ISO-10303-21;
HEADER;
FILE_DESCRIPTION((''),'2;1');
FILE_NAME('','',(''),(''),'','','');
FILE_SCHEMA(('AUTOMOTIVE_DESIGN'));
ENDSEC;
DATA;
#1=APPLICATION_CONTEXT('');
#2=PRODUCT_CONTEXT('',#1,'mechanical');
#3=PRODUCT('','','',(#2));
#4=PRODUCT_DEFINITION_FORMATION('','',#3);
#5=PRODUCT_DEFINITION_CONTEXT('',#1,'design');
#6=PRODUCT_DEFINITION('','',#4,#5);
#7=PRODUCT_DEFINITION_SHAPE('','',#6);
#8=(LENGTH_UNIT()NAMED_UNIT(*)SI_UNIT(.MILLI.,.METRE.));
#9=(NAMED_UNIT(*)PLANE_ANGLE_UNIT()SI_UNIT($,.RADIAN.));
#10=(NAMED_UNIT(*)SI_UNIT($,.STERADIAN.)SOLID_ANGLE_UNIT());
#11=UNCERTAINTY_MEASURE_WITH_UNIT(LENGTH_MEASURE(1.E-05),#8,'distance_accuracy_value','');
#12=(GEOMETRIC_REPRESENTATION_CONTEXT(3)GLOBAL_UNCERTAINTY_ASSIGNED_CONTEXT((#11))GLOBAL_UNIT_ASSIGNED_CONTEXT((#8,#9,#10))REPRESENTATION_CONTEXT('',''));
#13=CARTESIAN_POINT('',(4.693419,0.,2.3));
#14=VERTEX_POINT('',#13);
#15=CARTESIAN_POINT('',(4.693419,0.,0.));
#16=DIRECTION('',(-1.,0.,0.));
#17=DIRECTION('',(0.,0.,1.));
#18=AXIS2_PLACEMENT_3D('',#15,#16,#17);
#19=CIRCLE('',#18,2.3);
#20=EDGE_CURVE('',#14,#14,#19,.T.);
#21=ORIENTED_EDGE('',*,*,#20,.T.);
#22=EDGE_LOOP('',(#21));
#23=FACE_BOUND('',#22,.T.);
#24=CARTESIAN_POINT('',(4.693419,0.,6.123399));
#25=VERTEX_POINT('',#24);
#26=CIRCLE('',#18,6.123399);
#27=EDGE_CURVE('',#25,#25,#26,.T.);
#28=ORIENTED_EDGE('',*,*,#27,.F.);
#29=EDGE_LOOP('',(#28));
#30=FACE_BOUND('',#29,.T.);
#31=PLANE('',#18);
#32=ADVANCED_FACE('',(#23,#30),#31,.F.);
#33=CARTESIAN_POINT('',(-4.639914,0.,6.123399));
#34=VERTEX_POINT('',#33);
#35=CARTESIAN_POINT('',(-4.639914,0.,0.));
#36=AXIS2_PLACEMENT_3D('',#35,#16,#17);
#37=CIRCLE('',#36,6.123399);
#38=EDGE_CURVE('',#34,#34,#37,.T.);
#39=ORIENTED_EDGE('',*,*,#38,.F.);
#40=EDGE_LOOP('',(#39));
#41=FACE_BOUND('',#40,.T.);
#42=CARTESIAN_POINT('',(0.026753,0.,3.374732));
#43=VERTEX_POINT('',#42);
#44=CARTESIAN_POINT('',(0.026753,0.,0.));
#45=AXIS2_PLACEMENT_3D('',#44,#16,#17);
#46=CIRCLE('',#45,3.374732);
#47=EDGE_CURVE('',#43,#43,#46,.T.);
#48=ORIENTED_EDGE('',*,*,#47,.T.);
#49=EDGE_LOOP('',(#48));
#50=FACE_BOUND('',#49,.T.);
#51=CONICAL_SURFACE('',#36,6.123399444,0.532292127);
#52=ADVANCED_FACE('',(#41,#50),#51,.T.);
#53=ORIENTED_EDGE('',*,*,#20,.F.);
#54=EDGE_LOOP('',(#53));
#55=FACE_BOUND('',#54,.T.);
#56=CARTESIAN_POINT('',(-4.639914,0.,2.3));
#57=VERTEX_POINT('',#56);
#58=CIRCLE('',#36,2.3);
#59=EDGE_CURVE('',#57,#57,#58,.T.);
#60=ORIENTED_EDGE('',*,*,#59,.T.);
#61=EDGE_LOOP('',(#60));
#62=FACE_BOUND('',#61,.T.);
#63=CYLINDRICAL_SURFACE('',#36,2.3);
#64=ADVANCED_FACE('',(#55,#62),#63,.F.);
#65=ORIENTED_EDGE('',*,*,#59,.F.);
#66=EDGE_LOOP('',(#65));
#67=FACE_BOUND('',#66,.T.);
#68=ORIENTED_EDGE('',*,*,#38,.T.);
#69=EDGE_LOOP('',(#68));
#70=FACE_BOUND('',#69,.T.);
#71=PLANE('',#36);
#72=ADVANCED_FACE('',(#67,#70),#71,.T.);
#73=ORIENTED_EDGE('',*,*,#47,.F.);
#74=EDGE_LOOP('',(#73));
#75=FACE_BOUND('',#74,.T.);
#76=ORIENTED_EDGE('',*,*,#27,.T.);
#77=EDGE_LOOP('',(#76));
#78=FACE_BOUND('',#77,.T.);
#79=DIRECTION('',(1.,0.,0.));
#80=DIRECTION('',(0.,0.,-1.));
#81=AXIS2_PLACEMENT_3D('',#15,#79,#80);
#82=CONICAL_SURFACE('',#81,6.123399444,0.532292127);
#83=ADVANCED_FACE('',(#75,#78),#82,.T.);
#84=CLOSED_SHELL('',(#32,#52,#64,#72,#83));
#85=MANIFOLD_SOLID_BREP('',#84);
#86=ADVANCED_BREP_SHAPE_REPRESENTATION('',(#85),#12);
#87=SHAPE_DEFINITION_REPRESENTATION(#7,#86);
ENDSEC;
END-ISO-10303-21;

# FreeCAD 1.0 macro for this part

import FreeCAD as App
import Part
import Sketcher

V = App.Vector
Q = App.Units.Quantity

doc = App.newDocument("Part")
params = doc.addObject("Spreadsheet::Sheet", "Params")
for row, (alias, value) in enumerate([
    ("revolution_angle", "360 deg"),
], start=1):
    params.set(f"A{row}", alias)
    params.set(f"B{row}", "=" + value)
    params.setAlias(f"B{row}", alias)

body = doc.addObject("PartDesign::Body", "Body")

# Sketch on XZ plane
sketch1 = body.newObject("Sketcher::SketchObject", "Sketch")
sketch1.AttachmentSupport = (doc.getObject("XZ_Plane"), [""])
sketch1.MapMode = "FlatFace"
sketch1.addGeometry([
    Part.LineSegment(V(-4.6, -6.1, 0), V(-4.6, -2.3, 0)),  # 0
    Part.LineSegment(V(-4.6, -2.3, 0), V(4.7, -2.3, 0)),  # 1
    Part.LineSegment(V(4.7, -2.3, 0), V(4.7, -6.1, 0)),  # 2
    Part.LineSegment(V(4.7, -6.1, 0), V(0, -3.4, 0)),  # 3
    Part.LineSegment(V(0, -3.4, 0), V(-4.6, -6.1, 0)),  # 4
], False)
sketch1.addConstraint([
    Sketcher.Constraint("Coincident", 0, 2, 1, 1),
    Sketcher.Constraint("Coincident", 1, 2, 2, 1),
    Sketcher.Constraint("Coincident", 2, 2, 3, 1),
    Sketcher.Constraint("Coincident", 3, 2, 4, 1),
    Sketcher.Constraint("Coincident", 4, 2, 0, 1),
    Sketcher.Constraint("Vertical", 0),
    Sketcher.Constraint("Horizontal", 1),
    Sketcher.Constraint("Vertical", 2),
    Sketcher.Constraint("Horizontal", 2, 2, 4, 2),
    Sketcher.Constraint("Equal", 3, 4),
    Sketcher.Constraint("DistanceY", 0, 2, -1, 1, Q("2.3 mm")),
    Sketcher.Constraint("DistanceY", 0, 1, 0, 2, Q("3.823399 mm")),
    Sketcher.Constraint("Distance", 3, Q("5.41599 mm")),
    Sketcher.Constraint("DistanceX", 1, 1, 1, 2, Q("9.333333 mm")),
    Sketcher.Constraint("DistanceX", -1, 1, 1, 2, Q("4.693419 mm")),
])
revolution = body.newObject("PartDesign::Revolution", "Revolution")
revolution.Profile = sketch1
revolution.ReferenceAxis = (sketch1, ["H_Axis"])
revolution.setExpression("Angle", "Params.revolution_angle")

doc.recompute()
